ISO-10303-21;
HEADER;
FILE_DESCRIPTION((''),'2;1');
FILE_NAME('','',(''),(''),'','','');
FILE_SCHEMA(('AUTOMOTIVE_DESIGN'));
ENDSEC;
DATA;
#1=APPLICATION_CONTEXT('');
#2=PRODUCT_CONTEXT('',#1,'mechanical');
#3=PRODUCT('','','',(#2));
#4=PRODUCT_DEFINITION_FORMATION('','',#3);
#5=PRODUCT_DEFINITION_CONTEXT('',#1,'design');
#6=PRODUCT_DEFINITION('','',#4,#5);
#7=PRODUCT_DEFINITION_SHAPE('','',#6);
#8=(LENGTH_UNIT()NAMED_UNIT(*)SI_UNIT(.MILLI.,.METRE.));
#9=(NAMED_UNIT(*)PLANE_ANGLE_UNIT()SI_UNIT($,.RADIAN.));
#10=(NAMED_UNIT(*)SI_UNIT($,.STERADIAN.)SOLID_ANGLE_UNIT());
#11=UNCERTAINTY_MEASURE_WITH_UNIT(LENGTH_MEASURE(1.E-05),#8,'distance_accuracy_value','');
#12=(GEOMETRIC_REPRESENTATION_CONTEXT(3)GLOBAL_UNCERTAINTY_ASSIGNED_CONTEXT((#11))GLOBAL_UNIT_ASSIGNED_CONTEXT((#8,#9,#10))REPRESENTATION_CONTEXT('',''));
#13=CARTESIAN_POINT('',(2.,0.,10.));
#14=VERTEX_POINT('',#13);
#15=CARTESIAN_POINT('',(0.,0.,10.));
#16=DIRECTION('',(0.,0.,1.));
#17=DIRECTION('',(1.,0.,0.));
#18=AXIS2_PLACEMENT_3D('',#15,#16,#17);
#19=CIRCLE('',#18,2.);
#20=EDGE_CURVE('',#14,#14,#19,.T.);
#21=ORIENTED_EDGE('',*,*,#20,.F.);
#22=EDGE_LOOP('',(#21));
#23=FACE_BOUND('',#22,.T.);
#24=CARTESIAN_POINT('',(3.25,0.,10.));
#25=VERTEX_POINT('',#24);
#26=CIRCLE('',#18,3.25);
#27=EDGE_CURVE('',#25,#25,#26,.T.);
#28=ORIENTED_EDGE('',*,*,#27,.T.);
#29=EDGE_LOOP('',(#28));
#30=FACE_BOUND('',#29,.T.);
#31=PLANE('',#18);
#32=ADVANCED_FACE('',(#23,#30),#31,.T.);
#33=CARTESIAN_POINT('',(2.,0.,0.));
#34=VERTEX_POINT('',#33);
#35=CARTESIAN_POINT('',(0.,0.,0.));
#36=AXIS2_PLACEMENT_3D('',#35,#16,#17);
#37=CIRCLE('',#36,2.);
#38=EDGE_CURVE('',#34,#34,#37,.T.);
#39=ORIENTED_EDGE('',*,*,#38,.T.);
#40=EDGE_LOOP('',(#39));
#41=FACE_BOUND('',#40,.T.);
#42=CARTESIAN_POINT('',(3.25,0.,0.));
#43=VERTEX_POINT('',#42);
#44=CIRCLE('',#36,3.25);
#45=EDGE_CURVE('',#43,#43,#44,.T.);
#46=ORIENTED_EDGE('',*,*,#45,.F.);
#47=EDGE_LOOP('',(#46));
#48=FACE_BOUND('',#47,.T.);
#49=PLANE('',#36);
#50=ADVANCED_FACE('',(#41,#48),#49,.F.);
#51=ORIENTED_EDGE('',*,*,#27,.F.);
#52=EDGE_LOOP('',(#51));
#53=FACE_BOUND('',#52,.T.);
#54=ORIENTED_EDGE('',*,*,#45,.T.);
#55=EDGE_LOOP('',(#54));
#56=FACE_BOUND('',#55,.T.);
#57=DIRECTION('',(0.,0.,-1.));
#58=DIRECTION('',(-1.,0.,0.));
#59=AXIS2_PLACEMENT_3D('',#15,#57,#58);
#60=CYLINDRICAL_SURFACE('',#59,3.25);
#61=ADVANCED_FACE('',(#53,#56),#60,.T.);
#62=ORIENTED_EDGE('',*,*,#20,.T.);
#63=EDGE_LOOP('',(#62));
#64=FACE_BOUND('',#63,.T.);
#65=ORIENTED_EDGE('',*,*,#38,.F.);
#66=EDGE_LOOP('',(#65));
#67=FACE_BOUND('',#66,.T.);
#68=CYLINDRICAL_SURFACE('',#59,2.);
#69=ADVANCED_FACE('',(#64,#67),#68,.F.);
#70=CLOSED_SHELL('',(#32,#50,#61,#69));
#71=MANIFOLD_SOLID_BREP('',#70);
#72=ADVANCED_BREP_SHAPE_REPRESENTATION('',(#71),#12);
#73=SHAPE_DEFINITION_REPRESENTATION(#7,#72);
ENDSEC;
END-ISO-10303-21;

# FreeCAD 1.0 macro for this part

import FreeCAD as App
import Part
import Sketcher

V = App.Vector
Q = App.Units.Quantity

doc = App.newDocument("Part")
body = doc.addObject("PartDesign::Body", "Body")

sketch1 = body.newObject("Sketcher::SketchObject", "Sketch")
sketch1.AttachmentSupport = (doc.getObject("XY_Plane"), [""])
sketch1.MapMode = "FlatFace"
sketch1.addGeometry(Part.Circle(V(0, 0, 0), V(0, 0, 1), 3.25), False)
sketch1.addGeometry(Part.Circle(V(0, 0, 0), V(0, 0, 1), 2), False)
sketch1.addConstraint(Sketcher.Constraint("Coincident", 0, 3, -1, 1))
sketch1.addConstraint(Sketcher.Constraint("Coincident", 1, 3, -1, 1))
sketch1.addConstraint(Sketcher.Constraint("Diameter", 1, Q("4 mm")))
sketch1.addConstraint(Sketcher.Constraint("Diameter", 0, Q("6.5 mm")))
pad1 = body.newObject("PartDesign::Pad", "Pad")
pad1.Profile = sketch1
pad1.Length = 10

doc.recompute()
